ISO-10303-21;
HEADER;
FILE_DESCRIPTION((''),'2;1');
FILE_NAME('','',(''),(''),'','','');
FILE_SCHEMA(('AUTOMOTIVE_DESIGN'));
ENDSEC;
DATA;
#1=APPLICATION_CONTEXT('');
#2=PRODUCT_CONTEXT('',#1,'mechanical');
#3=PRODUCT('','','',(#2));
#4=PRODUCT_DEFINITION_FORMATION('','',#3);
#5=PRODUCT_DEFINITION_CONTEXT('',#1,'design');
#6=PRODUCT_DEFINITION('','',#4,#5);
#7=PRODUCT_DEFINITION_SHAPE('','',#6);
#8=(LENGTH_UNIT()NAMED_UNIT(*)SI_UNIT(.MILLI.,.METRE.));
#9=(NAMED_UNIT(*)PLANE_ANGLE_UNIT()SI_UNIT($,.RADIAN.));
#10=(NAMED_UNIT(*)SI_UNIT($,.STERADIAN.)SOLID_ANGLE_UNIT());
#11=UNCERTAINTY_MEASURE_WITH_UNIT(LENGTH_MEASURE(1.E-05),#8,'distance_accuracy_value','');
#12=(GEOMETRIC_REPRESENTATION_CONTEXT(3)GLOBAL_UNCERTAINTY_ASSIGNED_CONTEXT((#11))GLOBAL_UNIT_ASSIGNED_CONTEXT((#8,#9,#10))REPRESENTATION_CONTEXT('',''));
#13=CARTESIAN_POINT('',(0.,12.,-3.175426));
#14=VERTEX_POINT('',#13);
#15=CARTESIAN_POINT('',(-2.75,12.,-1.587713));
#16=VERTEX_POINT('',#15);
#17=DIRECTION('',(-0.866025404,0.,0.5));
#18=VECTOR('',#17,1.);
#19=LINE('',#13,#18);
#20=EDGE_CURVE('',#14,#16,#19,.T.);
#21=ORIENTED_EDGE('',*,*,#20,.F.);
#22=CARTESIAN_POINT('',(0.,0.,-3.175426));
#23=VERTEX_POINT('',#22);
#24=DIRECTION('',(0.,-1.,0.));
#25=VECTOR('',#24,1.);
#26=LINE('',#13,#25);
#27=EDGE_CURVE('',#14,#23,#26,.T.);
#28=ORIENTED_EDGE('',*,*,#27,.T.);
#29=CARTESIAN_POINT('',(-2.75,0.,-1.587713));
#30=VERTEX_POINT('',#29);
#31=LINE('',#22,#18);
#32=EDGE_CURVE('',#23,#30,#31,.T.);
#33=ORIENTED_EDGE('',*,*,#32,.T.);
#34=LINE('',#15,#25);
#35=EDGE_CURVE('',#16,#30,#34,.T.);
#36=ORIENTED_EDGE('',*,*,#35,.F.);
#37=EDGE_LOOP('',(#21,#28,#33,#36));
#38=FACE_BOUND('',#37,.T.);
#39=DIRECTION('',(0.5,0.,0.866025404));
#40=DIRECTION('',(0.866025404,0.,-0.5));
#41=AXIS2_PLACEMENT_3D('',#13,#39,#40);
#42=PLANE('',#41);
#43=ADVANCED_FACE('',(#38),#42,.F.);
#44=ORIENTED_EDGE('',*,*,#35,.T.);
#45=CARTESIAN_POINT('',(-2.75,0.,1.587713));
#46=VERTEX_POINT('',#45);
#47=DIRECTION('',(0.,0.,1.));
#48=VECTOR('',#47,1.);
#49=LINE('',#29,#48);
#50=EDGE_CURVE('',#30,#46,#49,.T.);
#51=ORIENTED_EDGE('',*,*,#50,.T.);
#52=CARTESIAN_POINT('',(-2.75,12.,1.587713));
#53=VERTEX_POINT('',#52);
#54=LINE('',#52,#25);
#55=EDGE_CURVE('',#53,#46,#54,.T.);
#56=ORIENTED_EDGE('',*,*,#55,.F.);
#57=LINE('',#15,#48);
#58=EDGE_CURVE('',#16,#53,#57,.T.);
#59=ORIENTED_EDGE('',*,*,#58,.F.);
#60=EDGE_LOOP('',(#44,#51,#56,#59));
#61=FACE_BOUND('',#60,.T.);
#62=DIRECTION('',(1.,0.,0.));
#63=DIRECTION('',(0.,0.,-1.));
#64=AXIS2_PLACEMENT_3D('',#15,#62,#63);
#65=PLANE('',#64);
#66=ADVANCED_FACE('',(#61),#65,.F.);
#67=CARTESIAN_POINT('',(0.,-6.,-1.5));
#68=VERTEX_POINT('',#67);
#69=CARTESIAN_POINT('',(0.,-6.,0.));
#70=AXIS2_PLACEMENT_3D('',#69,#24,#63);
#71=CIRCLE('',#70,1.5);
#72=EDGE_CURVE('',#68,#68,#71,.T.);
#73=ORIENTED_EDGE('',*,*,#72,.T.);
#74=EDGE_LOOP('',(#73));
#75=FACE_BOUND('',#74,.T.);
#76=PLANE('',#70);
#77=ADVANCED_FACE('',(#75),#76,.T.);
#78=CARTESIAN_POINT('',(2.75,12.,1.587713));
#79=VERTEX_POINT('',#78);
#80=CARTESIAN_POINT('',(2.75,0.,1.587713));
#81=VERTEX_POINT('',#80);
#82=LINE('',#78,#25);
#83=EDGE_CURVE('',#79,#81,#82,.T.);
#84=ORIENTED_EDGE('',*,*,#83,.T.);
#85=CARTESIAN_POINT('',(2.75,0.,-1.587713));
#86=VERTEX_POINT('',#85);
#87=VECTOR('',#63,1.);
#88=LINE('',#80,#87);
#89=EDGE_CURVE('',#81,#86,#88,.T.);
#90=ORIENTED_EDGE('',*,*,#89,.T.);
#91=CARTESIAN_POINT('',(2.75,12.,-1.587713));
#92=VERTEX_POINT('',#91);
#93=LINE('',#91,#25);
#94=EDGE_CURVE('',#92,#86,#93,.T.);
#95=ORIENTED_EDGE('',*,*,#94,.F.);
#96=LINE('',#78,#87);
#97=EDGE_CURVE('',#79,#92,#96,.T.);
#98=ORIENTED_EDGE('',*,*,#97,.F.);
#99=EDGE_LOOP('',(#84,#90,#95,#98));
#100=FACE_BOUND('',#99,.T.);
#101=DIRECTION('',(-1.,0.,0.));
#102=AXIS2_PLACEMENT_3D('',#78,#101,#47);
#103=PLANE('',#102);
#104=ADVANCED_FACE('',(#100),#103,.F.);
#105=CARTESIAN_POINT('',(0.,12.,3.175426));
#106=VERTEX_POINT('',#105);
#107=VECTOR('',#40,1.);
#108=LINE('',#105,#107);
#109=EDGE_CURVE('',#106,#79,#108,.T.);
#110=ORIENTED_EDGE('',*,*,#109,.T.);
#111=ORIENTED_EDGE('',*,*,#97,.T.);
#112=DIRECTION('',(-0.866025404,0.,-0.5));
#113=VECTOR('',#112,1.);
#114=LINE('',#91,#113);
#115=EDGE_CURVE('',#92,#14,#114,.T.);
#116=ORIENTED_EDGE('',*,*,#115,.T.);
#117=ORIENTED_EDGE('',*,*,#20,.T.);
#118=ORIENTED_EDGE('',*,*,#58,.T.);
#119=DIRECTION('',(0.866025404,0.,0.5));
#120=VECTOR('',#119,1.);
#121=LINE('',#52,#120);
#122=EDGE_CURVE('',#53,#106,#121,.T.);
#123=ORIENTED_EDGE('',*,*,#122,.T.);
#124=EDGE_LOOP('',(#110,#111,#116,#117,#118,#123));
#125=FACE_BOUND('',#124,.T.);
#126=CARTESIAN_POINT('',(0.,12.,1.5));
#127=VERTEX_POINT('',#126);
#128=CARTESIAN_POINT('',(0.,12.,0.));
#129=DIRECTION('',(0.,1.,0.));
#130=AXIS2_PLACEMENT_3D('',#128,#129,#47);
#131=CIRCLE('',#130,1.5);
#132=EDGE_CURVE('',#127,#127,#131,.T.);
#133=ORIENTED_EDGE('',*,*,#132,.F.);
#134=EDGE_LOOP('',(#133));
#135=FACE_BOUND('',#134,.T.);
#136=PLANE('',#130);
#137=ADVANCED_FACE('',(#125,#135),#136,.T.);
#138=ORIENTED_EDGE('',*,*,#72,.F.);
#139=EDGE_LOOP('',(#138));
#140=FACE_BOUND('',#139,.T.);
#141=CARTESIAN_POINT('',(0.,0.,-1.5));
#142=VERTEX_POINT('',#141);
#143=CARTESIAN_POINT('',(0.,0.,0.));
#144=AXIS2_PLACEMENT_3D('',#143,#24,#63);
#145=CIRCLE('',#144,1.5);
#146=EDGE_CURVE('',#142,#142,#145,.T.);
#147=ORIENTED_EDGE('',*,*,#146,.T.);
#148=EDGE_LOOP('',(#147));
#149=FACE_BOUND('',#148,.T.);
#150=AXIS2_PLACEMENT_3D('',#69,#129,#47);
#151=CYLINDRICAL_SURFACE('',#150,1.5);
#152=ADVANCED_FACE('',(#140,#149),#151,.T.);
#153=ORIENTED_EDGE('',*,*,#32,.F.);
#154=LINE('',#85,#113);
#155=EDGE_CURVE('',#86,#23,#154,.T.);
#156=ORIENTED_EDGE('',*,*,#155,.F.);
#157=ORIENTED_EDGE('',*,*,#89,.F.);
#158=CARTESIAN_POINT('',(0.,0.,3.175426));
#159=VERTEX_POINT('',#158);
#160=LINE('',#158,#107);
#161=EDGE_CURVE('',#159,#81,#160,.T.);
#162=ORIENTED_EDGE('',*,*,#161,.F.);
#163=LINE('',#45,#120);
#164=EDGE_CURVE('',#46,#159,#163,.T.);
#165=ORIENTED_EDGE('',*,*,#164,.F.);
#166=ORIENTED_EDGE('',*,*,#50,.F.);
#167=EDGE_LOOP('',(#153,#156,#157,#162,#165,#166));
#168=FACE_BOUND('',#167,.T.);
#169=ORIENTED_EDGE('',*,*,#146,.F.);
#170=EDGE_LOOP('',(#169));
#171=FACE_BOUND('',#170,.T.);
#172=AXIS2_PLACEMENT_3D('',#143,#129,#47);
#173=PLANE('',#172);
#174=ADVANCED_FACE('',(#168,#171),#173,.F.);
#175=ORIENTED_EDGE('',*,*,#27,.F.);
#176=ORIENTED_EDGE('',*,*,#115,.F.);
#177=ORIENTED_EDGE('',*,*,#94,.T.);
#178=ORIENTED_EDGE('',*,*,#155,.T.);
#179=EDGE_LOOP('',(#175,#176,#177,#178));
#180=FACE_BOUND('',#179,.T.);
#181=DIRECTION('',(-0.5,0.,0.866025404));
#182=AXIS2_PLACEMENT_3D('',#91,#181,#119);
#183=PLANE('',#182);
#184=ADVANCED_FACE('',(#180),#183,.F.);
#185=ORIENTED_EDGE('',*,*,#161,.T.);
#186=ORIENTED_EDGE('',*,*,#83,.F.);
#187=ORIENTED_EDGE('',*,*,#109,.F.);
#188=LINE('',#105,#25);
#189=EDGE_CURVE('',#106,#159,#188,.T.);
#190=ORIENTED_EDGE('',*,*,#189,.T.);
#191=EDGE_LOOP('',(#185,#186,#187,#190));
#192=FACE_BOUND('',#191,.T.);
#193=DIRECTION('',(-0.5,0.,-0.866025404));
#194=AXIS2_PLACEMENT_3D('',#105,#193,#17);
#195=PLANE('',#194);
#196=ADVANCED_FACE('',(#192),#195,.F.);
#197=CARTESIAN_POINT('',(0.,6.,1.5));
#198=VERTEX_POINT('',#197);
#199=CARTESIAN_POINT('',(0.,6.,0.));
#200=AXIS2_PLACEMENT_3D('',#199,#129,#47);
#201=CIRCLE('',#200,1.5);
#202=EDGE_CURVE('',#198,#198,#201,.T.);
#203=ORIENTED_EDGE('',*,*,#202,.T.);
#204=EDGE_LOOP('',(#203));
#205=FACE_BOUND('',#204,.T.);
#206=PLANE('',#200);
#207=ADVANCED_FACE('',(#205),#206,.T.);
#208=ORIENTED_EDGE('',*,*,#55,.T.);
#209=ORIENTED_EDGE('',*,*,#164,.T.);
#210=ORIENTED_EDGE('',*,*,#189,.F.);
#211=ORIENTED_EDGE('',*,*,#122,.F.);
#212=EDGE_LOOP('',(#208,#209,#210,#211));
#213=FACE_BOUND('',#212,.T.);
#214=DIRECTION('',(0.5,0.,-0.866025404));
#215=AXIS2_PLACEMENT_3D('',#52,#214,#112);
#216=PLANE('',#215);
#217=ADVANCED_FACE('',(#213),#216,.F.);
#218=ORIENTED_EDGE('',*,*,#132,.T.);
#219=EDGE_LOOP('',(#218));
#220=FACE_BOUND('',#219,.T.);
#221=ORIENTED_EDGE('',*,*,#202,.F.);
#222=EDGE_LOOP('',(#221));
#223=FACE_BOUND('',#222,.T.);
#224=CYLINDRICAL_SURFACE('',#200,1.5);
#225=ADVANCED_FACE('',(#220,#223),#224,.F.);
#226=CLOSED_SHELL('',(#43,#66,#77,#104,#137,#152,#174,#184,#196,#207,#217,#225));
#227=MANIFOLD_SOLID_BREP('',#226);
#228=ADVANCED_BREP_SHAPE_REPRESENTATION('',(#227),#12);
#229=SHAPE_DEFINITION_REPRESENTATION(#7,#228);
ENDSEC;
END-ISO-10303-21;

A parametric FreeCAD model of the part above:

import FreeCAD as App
import Part
import Sketcher
Q = App.Units.Quantity


def add_polygon(sketch, points):
    """Adds a closed chain of lines whose ends are joined by coincident constraints."""
    first, n = sketch.GeometryCount, len(points)
    for a, b in zip(points, points[1:] + points[:1]):
        sketch.addGeometry(Part.LineSegment(App.Vector(*a, 0), App.Vector(*b, 0)), False)
    for i in range(n):
        sketch.addConstraint(Sketcher.Constraint("Coincident", first + i, 2, first + (i + 1) % n, 1))

doc = App.newDocument("Part")
body = doc.addObject("PartDesign::Body", "Body")

sketch1 = body.newObject("Sketcher::SketchObject", "Sketch")
sketch1.AttachmentSupport = (doc.getObject("XZ_Plane"), [""])
sketch1.MapMode = "FlatFace"
add_polygon(sketch1, [(0, -3.2), (-2.8, -1.6), (-2.8, 1.6), (0, 3.2), (2.8, 1.6), (2.8, -1.6)])
sketch1.addConstraint([
    Sketcher.Constraint("Vertical", 1),
    Sketcher.Constraint("Vertical", 4),
    Sketcher.Constraint("Symmetric", 0, 2, 3, 2, -1, 1),
    Sketcher.Constraint("Symmetric", 2, 2, 5, 2, -1, 1),
    Sketcher.Constraint("PointOnObject", 2, 2, -2),
    Sketcher.Constraint("Parallel", 2, 5),
    Sketcher.Constraint("Horizontal", 1, 2, 3, 2),
    Sketcher.Constraint("Angle", 0, Q("150 deg")),
    Sketcher.Constraint("DistanceX", 1, 2, 3, 2, 5.5),
    Sketcher.Constraint("DistanceY", 1, 1, 1, 2, 3.175426),
])
pad1 = body.newObject("PartDesign::Pad", "Pad")
pad1.Profile = sketch1
pad1.Length = 12
pad1.Reversed = True

sketch2 = body.newObject("Sketcher::SketchObject", "Sketch001")
sketch2.AttachmentSupport = (doc.getObject("XZ_Plane"), [""])
sketch2.MapMode = "FlatFace"
sketch2.addGeometry(Part.Circle(App.Vector(0, 0, 0), App.Vector(0, 0, 1), 1.5), False)
sketch2.addConstraint([
    Sketcher.Constraint("Coincident", 0, 3, -1, 1),
    Sketcher.Constraint("Diameter", 0, 3.0),
])
pad2 = body.newObject("PartDesign::Pad", "Pad001")
pad2.Profile = sketch2
pad2.Length = 6

sketch3 = body.newObject("Sketcher::SketchObject", "Sketch002")
sketch3.AttachmentSupport = (doc.getObject("XZ_Plane"), [""])
sketch3.MapMode = "FlatFace"
sketch3.AttachmentOffset = App.Placement(App.Vector(0, 0, -12), App.Rotation())
sketch3.addGeometry(Part.Circle(App.Vector(0, 0, 0), App.Vector(0, 0, 1), 1.5), False)
sketch3.addConstraint([
    Sketcher.Constraint("Coincident", 0, 3, -1, 1),
    Sketcher.Constraint("Diameter", 0, 3.0),
])
pocket1 = body.newObject("PartDesign::Pocket", "Pocket")
pocket1.Profile = sketch3
pocket1.Length = 6
pocket1.Reversed = True

doc.recompute()
